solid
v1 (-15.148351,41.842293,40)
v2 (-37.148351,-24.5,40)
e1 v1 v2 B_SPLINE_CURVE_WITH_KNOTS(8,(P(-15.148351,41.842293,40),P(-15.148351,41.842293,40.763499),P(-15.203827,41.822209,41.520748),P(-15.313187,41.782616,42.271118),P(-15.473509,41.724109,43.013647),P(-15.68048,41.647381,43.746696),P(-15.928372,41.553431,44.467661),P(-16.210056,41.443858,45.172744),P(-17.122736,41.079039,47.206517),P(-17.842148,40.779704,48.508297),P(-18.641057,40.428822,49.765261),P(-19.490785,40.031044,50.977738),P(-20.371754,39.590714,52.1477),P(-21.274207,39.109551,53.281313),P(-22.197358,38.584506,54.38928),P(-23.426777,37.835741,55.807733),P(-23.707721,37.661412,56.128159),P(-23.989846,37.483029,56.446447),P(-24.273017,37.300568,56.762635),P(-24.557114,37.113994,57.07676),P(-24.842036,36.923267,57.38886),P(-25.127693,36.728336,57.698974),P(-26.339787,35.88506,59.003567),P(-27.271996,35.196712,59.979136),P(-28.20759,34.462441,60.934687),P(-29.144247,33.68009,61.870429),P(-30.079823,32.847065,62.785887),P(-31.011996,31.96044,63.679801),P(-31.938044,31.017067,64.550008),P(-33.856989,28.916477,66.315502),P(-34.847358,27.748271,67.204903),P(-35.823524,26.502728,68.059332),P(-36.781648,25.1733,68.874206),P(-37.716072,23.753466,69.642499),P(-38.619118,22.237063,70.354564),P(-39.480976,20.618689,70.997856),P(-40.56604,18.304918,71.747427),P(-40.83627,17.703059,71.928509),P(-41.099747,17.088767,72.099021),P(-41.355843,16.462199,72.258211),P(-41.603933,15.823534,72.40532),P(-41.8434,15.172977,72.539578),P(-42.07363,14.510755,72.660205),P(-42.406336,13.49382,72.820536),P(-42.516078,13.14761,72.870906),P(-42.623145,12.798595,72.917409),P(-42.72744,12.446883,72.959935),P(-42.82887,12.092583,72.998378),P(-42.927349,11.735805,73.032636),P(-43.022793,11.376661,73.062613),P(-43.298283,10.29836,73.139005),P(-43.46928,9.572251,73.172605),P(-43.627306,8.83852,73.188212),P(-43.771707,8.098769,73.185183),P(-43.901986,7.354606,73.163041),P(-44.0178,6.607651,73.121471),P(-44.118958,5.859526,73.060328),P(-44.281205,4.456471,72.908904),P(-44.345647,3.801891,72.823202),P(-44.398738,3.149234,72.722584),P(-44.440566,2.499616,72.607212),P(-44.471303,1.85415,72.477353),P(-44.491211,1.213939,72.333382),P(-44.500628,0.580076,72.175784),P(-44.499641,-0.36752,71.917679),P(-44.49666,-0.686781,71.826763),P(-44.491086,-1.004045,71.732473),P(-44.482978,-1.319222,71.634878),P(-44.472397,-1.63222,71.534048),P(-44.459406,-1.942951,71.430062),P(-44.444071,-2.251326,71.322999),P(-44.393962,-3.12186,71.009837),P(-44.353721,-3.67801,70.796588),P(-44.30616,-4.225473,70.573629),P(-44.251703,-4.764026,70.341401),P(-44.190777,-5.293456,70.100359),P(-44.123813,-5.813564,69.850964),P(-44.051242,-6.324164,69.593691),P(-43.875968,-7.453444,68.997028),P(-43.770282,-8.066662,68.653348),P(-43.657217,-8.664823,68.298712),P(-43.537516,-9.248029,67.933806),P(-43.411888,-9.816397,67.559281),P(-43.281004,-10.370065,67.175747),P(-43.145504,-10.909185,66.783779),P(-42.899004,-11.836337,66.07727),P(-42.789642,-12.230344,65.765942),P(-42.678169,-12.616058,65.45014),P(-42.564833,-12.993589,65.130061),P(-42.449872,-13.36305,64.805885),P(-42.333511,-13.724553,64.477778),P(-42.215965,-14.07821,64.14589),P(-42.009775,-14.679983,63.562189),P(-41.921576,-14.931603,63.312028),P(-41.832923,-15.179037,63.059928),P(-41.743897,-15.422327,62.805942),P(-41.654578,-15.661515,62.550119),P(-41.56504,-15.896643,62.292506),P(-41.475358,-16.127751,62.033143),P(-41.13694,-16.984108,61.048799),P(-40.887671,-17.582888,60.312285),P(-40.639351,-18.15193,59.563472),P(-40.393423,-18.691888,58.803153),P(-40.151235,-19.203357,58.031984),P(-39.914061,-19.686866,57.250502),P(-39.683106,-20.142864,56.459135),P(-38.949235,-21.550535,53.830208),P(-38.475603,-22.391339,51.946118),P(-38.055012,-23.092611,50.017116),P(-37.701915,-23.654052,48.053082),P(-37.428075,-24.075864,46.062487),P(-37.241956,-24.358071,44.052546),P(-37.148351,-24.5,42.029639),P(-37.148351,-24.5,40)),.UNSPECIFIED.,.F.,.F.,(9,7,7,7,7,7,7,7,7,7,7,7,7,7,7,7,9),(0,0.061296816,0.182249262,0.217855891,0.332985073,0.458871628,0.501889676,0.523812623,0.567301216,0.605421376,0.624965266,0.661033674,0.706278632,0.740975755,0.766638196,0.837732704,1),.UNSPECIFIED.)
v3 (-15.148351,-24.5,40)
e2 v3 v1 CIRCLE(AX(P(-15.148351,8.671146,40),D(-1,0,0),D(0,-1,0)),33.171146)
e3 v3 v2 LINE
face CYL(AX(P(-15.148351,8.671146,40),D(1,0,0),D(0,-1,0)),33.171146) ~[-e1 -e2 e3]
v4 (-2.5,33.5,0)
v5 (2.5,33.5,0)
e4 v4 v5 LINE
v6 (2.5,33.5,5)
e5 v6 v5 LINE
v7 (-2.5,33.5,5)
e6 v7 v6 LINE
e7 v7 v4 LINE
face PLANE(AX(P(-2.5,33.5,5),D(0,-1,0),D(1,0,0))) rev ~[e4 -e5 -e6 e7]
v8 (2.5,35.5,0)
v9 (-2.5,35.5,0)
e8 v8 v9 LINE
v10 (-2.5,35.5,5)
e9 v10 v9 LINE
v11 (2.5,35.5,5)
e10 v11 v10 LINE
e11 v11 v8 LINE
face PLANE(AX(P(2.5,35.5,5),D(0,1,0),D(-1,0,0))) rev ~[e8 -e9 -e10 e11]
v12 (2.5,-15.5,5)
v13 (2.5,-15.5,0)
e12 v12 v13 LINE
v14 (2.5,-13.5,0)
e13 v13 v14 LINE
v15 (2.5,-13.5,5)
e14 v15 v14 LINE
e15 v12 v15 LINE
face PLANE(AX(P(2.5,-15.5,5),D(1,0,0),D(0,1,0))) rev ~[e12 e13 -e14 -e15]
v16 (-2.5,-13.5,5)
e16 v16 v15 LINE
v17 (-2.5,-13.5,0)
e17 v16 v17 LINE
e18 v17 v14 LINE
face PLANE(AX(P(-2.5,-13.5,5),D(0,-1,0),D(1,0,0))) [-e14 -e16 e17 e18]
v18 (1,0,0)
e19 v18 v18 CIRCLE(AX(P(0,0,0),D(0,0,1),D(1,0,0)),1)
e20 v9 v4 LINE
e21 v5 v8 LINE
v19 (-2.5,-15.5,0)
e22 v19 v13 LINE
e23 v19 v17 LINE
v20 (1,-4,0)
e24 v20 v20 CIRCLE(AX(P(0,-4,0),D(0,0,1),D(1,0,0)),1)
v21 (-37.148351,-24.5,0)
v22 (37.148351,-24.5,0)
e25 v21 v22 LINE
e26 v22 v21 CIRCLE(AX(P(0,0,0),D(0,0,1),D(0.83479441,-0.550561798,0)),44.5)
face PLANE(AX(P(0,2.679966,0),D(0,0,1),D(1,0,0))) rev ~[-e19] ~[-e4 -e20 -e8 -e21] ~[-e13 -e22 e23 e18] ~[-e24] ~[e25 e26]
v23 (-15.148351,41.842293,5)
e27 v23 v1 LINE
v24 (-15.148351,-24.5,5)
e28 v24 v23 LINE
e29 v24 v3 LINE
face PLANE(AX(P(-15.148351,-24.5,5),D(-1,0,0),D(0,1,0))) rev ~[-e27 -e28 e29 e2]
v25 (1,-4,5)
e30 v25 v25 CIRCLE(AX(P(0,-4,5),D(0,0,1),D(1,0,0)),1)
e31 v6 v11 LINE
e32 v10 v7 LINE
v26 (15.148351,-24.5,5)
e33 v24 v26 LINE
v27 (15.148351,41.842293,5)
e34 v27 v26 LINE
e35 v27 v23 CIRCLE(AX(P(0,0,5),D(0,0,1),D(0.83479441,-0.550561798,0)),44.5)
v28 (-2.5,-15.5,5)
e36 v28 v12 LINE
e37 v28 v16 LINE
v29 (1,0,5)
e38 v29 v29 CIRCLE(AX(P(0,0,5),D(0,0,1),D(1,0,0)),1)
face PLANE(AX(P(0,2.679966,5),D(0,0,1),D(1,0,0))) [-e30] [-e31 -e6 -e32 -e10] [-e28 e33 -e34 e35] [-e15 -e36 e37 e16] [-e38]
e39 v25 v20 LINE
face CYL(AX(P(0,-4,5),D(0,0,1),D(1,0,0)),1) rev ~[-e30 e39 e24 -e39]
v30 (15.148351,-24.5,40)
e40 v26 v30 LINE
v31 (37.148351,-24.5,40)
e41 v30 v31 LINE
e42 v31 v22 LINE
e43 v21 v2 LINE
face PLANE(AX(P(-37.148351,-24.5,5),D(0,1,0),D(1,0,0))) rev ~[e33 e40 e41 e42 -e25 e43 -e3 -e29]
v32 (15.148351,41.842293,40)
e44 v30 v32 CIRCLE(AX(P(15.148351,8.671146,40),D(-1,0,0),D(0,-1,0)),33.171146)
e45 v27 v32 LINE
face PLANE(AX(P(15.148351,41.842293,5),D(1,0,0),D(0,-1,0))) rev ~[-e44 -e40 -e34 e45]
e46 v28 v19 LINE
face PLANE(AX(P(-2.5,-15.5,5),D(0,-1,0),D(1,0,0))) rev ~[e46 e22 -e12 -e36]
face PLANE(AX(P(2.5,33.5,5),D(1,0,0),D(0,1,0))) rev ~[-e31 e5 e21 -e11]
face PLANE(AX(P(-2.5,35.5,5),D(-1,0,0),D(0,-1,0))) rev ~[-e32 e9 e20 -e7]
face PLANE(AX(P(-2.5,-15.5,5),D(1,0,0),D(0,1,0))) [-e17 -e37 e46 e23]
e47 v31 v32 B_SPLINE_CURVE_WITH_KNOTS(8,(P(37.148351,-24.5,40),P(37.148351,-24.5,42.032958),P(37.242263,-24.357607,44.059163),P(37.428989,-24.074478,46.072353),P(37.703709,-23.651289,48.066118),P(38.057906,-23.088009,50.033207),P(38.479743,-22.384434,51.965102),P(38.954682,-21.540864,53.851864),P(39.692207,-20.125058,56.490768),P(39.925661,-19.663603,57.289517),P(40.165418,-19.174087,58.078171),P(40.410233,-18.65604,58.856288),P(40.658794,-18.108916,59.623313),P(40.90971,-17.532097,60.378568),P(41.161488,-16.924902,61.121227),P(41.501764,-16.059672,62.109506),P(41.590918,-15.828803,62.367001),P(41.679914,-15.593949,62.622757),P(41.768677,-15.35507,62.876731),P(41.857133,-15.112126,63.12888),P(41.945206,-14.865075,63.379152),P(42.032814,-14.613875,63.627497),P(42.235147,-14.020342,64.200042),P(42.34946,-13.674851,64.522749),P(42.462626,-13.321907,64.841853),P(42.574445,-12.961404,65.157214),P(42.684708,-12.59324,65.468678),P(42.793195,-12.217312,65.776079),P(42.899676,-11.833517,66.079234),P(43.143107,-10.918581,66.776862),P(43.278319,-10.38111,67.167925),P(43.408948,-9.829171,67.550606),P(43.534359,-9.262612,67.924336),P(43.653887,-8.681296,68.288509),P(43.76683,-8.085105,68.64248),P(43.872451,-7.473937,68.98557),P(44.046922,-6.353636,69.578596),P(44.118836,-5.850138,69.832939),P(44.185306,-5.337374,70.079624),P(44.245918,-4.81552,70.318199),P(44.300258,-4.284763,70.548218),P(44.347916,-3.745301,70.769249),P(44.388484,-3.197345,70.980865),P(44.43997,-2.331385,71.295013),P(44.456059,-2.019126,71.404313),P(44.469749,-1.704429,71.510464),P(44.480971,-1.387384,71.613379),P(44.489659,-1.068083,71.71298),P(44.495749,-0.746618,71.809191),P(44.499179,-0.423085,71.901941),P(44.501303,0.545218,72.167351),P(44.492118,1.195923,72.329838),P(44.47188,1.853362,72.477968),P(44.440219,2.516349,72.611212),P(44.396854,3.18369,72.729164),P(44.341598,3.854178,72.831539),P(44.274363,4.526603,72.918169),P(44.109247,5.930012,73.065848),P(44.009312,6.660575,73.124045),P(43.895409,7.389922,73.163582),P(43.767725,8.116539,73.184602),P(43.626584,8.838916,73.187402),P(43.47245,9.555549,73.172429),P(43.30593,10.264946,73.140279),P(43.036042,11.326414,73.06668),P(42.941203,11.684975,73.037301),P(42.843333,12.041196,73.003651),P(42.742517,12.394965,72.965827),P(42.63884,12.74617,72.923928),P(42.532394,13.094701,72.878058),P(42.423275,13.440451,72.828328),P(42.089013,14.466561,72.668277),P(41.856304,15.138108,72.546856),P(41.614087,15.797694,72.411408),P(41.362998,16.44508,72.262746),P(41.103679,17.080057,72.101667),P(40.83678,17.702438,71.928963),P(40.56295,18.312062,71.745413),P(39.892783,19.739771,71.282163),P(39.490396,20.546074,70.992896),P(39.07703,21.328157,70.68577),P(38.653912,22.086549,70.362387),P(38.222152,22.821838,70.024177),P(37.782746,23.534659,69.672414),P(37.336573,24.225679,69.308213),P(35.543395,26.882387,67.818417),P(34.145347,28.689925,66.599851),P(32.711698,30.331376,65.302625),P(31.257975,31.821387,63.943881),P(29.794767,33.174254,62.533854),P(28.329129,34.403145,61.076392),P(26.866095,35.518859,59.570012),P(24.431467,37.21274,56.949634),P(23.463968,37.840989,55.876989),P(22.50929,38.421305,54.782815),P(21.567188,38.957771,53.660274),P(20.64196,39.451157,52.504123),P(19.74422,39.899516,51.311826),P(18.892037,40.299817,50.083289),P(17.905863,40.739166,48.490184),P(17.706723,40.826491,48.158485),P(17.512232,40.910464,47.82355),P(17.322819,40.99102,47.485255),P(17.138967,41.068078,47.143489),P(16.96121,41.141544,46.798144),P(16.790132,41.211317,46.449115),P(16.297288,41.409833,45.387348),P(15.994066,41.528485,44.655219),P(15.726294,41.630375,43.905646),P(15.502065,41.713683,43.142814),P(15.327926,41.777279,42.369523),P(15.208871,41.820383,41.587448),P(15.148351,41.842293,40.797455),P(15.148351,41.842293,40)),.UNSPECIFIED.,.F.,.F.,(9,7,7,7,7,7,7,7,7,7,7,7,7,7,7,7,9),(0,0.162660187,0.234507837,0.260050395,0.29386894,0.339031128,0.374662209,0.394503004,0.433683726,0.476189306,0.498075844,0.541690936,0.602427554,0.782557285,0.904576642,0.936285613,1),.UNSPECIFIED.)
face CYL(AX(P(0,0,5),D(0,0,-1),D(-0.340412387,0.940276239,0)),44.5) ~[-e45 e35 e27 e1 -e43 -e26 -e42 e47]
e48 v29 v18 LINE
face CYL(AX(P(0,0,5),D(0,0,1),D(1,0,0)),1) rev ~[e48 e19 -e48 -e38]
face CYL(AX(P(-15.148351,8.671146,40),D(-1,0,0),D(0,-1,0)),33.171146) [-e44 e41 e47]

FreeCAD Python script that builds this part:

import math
import FreeCAD as App
import Part
import Sketcher
from FreeCAD import Vector

doc = App.newDocument("Part")
params = doc.addObject("Spreadsheet::Sheet", "Params")
for row, (alias, value) in enumerate([
    ("sketch1_radius", "44.5 mm"),
    ("pad1_length", "5 mm"),
    ("sketch2_radius", "44.5 mm"),
    ("sketch2_width", "22 mm"),
    ("pad2_length", "70 mm"),
    ("sketch3_width", "104 mm"),
    ("sketch3_width2", "21 mm"),
    ("sketch3_height", "50 mm"),
    ("sketch4_width", "104 mm"),
    ("sketch4_width2", "21 mm"),
    ("sketch4_height", "50 mm"),
    ("sketch5_width", "5 mm"),
    ("sketch5_height", "2 mm"),
    ("sketch6_diameter", "2 mm"),
], start=1):
    params.set(f"A{row}", alias)
    params.set(f"B{row}", "=" + value)
    params.setAlias(f"B{row}", alias)

body = doc.addObject("PartDesign::Body", "Body")

sketch1 = body.newObject("Sketcher::SketchObject", "Sketch")
sketch1.AttachmentSupport = (doc.getObject("XY_Plane"), [""])
sketch1.MapMode = "FlatFace"
sketch1.addGeometry([
    Part.ArcOfCircle(Part.Circle(Vector(0, 0, 0), Vector(0, 0, 1), 44), math.radians(-33), math.radians(213)),
    Part.LineSegment(Vector(-37, -24, 0), Vector(37, -24, 0)),
], False)
sketch1.addConstraint([
    Sketcher.Constraint("Coincident", 0, 1, 1, 2),
    Sketcher.Constraint("Coincident", 1, 1, 0, 2),
    Sketcher.Constraint("Horizontal", 1),
    Sketcher.Constraint("Coincident", 0, 3, -1, 1),
    Sketcher.Constraint("Radius", 0, 44.5),
    Sketcher.Constraint("DistanceY", 0, 1, -1, 1, 24.5),
])
sketch1.setExpression("Constraints[4]", "Params.sketch1_radius")
pad1 = body.newObject("PartDesign::Pad", "Pad")
pad1.Profile = sketch1
pad1.setExpression("Length", "Params.pad1_length")

sketch2 = body.newObject("Sketcher::SketchObject", "Sketch001")
sketch2.AttachmentSupport = (doc.getObject("XY_Plane"), [""])
sketch2.MapMode = "FlatFace"
sketch2.AttachmentOffset = App.Placement(Vector(0, 0, 5), App.Rotation())
sketch2.addGeometry([
    Part.ArcOfCircle(Part.Circle(Vector(0, 0, 0), Vector(0, 0, 1), 44), math.radians(110), math.radians(213)),
    Part.LineSegment(Vector(-37, -24, 0), Vector(-15, -24, 0)),
    Part.LineSegment(Vector(-15, -24, 0), Vector(-15, 42, 0)),
    Part.LineSegment(Vector(15, 42, 0), Vector(15, -24, 0)),
    Part.LineSegment(Vector(15, -24, 0), Vector(37, -24, 0)),
    Part.ArcOfCircle(Part.Circle(Vector(0, 0, 0), Vector(0, 0, 1), 44), math.radians(-33), math.radians(70)),
], False)
sketch2.addConstraint([
    Sketcher.Constraint("Coincident", 0, 2, 1, 1),
    Sketcher.Constraint("Coincident", 1, 2, 2, 1),
    Sketcher.Constraint("Coincident", 2, 2, 0, 1),
    Sketcher.Constraint("Coincident", 3, 2, 4, 1),
    Sketcher.Constraint("Coincident", 4, 2, 5, 1),
    Sketcher.Constraint("Coincident", 5, 2, 3, 1),
    Sketcher.Constraint("Horizontal", 1),
    Sketcher.Constraint("Vertical", 2),
    Sketcher.Constraint("Vertical", 3),
    Sketcher.Constraint("Horizontal", 4),
    Sketcher.Constraint("Coincident", 0, 3, -1, 1),
    Sketcher.Constraint("Coincident", 5, 3, -1, 1),
    Sketcher.Constraint("Equal", 0, 5),
    Sketcher.Constraint("Symmetric", 1, 2, 3, 2, -2),
    Sketcher.Constraint("Radius", 0, 44.5),
    Sketcher.Constraint("DistanceX", 1, 1, 1, 2, 22.0),
    Sketcher.Constraint("DistanceY", 0, 2, -1, 1, 24.5),
])
sketch2.setExpression("Constraints[14]", "Params.sketch2_radius")
sketch2.setExpression("Constraints[15]", "Params.sketch2_width")
pad2 = body.newObject("PartDesign::Pad", "Pad001")
pad2.Profile = sketch2
pad2.setExpression("Length", "Params.pad2_length")

sketch3 = body.newObject("Sketcher::SketchObject", "Sketch002")
sketch3.AttachmentSupport = (doc.getObject("YZ_Plane"), [""])
sketch3.MapMode = "FlatFace"
sketch3.AttachmentOffset = App.Placement(Vector(0, 0, -15.148351), App.Rotation())
sketch3.addGeometry([
    Part.ArcOfCircle(Part.Circle(Vector(9, 40, 0), Vector(0, 0, 1), 33), math.radians(0), math.radians(180)),
    Part.LineSegment(Vector(42, 40, 0), Vector(58, 40, 0)),
    Part.LineSegment(Vector(58, 40, 0), Vector(58, 90, 0)),
    Part.LineSegment(Vector(58, 90, 0), Vector(-46, 90, 0)),
    Part.LineSegment(Vector(-46, 90, 0), Vector(-46, 40, 0)),
    Part.LineSegment(Vector(-46, 40, 0), Vector(-24, 40, 0)),
], False)
sketch3.addConstraint([
    Sketcher.Constraint("Coincident", 0, 1, 1, 1),
    Sketcher.Constraint("Coincident", 1, 2, 2, 1),
    Sketcher.Constraint("Coincident", 2, 2, 3, 1),
    Sketcher.Constraint("Coincident", 3, 2, 4, 1),
    Sketcher.Constraint("Coincident", 4, 2, 5, 1),
    Sketcher.Constraint("Coincident", 5, 2, 0, 2),
    Sketcher.Constraint("Horizontal", 1),
    Sketcher.Constraint("Vertical", 2),
    Sketcher.Constraint("Horizontal", 3),
    Sketcher.Constraint("Vertical", 4),
    Sketcher.Constraint("Horizontal", 5),
    Sketcher.Constraint("Horizontal", 1, 2, 4, 2),
    Sketcher.Constraint("DistanceX", 3, 2, 3, 1, 104.0),
    Sketcher.Constraint("DistanceX", 5, 1, 5, 2, 21.0),
    Sketcher.Constraint("DistanceY", 2, 1, 2, 2, 50.0),
    Sketcher.Constraint("DistanceY", -1, 1, 0, 3, 40.0),
    Sketcher.Constraint("DistanceY", -1, 1, 0, 1, 40.0),
    Sketcher.Constraint("DistanceX", -1, 1, 1, 2, 58.5),
    Sketcher.Constraint("Radius", 0, 33.171146),
])
sketch3.setExpression("Constraints[12]", "Params.sketch3_width")
sketch3.setExpression("Constraints[13]", "Params.sketch3_width2")
sketch3.setExpression("Constraints[14]", "Params.sketch3_height")
pocket1 = body.newObject("PartDesign::Pocket", "Pocket")
pocket1.Profile = sketch3
pocket1.Type = "ThroughAll"

sketch4 = body.newObject("Sketcher::SketchObject", "Sketch003")
sketch4.AttachmentSupport = (doc.getObject("YZ_Plane"), [""])
sketch4.MapMode = "FlatFace"
sketch4.AttachmentOffset = App.Placement(Vector(0, 0, -15.148351), App.Rotation())
sketch4.addGeometry([
    Part.ArcOfCircle(Part.Circle(Vector(9, 40, 0), Vector(0, 0, 1), 33), math.radians(0), math.radians(180)),
    Part.LineSegment(Vector(42, 40, 0), Vector(58, 40, 0)),
    Part.LineSegment(Vector(58, 40, 0), Vector(58, 90, 0)),
    Part.LineSegment(Vector(58, 90, 0), Vector(-46, 90, 0)),
    Part.LineSegment(Vector(-46, 90, 0), Vector(-46, 40, 0)),
    Part.LineSegment(Vector(-46, 40, 0), Vector(-24, 40, 0)),
], False)
sketch4.addConstraint([
    Sketcher.Constraint("Coincident", 0, 1, 1, 1),
    Sketcher.Constraint("Coincident", 1, 2, 2, 1),
    Sketcher.Constraint("Coincident", 2, 2, 3, 1),
    Sketcher.Constraint("Coincident", 3, 2, 4, 1),
    Sketcher.Constraint("Coincident", 4, 2, 5, 1),
    Sketcher.Constraint("Coincident", 5, 2, 0, 2),
    Sketcher.Constraint("Horizontal", 1),
    Sketcher.Constraint("Vertical", 2),
    Sketcher.Constraint("Horizontal", 3),
    Sketcher.Constraint("Vertical", 4),
    Sketcher.Constraint("Horizontal", 5),
    Sketcher.Constraint("Horizontal", 1, 2, 4, 2),
    Sketcher.Constraint("DistanceX", 3, 2, 3, 1, 104.0),
    Sketcher.Constraint("DistanceX", 5, 1, 5, 2, 21.0),
    Sketcher.Constraint("DistanceY", 2, 1, 2, 2, 50.0),
    Sketcher.Constraint("DistanceY", -1, 1, 0, 3, 40.0),
    Sketcher.Constraint("DistanceY", -1, 1, 0, 1, 40.0),
    Sketcher.Constraint("DistanceX", -1, 1, 1, 2, 58.5),
    Sketcher.Constraint("Radius", 0, 33.171146),
])
sketch4.setExpression("Constraints[12]", "Params.sketch4_width")
sketch4.setExpression("Constraints[13]", "Params.sketch4_width2")
sketch4.setExpression("Constraints[14]", "Params.sketch4_height")
pocket2 = body.newObject("PartDesign::Pocket", "Pocket001")
pocket2.Profile = sketch4
pocket2.Type = "ThroughAll"
pocket2.Reversed = True

sketch5 = body.newObject("Sketcher::SketchObject", "Sketch004")
sketch5.AttachmentSupport = (doc.getObject("XY_Plane"), [""])
sketch5.MapMode = "FlatFace"
sketch5.AttachmentOffset = App.Placement(Vector(0, 0, 5), App.Rotation())
sketch5.addGeometry([
    Part.LineSegment(Vector(-2.5, 33.5, 0), Vector(2.5, 33.5, 0)),
    Part.LineSegment(Vector(2.5, 33.5, 0), Vector(2.5, 35.5, 0)),
    Part.LineSegment(Vector(2.5, 35.5, 0), Vector(-2.5, 35.5, 0)),
    Part.LineSegment(Vector(-2.5, 35.5, 0), Vector(-2.5, 33.5, 0)),
    Part.LineSegment(Vector(-2.5, -13.5, 0), Vector(-2.5, -15.5, 0)),
    Part.LineSegment(Vector(-2.5, -15.5, 0), Vector(2.5, -15.5, 0)),
    Part.LineSegment(Vector(2.5, -15.5, 0), Vector(2.5, -13.5, 0)),
    Part.LineSegment(Vector(2.5, -13.5, 0), Vector(-2.5, -13.5, 0)),
], False)
sketch5.addConstraint([
    Sketcher.Constraint("Coincident", 0, 2, 1, 1),
    Sketcher.Constraint("Coincident", 1, 2, 2, 1),
    Sketcher.Constraint("Coincident", 2, 2, 3, 1),
    Sketcher.Constraint("Coincident", 3, 2, 0, 1),
    Sketcher.Constraint("Coincident", 4, 2, 5, 1),
    Sketcher.Constraint("Coincident", 5, 2, 6, 1),
    Sketcher.Constraint("Coincident", 6, 2, 7, 1),
    Sketcher.Constraint("Coincident", 7, 2, 4, 1),
    Sketcher.Constraint("Horizontal", 0),
    Sketcher.Constraint("Vertical", 1),
    Sketcher.Constraint("Horizontal", 2),
    Sketcher.Constraint("Vertical", 3),
    Sketcher.Constraint("Vertical", 4),
    Sketcher.Constraint("Horizontal", 5),
    Sketcher.Constraint("Vertical", 6),
    Sketcher.Constraint("Horizontal", 7),
    Sketcher.Constraint("Vertical", 3, 2, 4, 2),
    Sketcher.Constraint("Vertical", 1, 2, 5, 2),
    Sketcher.Constraint("Equal", 3, 4),
    Sketcher.Constraint("DistanceX", 0, 1, 0, 2, 5.0),
    Sketcher.Constraint("DistanceY", 1, 1, 1, 2, 2.0),
    Sketcher.Constraint("DistanceY", 4, 2, 3, 2, 49.0),
    Sketcher.Constraint("DistanceX", -1, 1, 0, 2, 2.5),
    Sketcher.Constraint("DistanceY", -1, 1, 0, 2, 33.5),
])
sketch5.setExpression("Constraints[19]", "Params.sketch5_width")
sketch5.setExpression("Constraints[20]", "Params.sketch5_height")
pocket3 = body.newObject("PartDesign::Pocket", "Pocket002")
pocket3.Profile = sketch5
pocket3.Type = "ThroughAll"

sketch6 = body.newObject("Sketcher::SketchObject", "Sketch005")
sketch6.AttachmentSupport = (doc.getObject("XY_Plane"), [""])
sketch6.MapMode = "FlatFace"
sketch6.AttachmentOffset = App.Placement(Vector(0, 0, 5), App.Rotation())
sketch6.addGeometry([
    Part.Circle(Vector(0, 0, 0), Vector(0, 0, 1), 1),
    Part.Circle(Vector(0, -4, 0), Vector(0, 0, 1), 1),
], False)
sketch6.addConstraint([
    Sketcher.Constraint("Coincident", 0, 3, -1, 1),
    Sketcher.Constraint("Equal", 0, 1),
    Sketcher.Constraint("PointOnObject", 1, 3, -2),
    Sketcher.Constraint("Diameter", 0, 2.0),
    Sketcher.Constraint("DistanceY", 1, 3, -1, 1, 4.0),
])
sketch6.setExpression("Constraints[3]", "Params.sketch6_diameter")
pocket4 = body.newObject("PartDesign::Pocket", "Pocket003")
pocket4.Profile = sketch6
pocket4.Type = "ThroughAll"

doc.recompute()
